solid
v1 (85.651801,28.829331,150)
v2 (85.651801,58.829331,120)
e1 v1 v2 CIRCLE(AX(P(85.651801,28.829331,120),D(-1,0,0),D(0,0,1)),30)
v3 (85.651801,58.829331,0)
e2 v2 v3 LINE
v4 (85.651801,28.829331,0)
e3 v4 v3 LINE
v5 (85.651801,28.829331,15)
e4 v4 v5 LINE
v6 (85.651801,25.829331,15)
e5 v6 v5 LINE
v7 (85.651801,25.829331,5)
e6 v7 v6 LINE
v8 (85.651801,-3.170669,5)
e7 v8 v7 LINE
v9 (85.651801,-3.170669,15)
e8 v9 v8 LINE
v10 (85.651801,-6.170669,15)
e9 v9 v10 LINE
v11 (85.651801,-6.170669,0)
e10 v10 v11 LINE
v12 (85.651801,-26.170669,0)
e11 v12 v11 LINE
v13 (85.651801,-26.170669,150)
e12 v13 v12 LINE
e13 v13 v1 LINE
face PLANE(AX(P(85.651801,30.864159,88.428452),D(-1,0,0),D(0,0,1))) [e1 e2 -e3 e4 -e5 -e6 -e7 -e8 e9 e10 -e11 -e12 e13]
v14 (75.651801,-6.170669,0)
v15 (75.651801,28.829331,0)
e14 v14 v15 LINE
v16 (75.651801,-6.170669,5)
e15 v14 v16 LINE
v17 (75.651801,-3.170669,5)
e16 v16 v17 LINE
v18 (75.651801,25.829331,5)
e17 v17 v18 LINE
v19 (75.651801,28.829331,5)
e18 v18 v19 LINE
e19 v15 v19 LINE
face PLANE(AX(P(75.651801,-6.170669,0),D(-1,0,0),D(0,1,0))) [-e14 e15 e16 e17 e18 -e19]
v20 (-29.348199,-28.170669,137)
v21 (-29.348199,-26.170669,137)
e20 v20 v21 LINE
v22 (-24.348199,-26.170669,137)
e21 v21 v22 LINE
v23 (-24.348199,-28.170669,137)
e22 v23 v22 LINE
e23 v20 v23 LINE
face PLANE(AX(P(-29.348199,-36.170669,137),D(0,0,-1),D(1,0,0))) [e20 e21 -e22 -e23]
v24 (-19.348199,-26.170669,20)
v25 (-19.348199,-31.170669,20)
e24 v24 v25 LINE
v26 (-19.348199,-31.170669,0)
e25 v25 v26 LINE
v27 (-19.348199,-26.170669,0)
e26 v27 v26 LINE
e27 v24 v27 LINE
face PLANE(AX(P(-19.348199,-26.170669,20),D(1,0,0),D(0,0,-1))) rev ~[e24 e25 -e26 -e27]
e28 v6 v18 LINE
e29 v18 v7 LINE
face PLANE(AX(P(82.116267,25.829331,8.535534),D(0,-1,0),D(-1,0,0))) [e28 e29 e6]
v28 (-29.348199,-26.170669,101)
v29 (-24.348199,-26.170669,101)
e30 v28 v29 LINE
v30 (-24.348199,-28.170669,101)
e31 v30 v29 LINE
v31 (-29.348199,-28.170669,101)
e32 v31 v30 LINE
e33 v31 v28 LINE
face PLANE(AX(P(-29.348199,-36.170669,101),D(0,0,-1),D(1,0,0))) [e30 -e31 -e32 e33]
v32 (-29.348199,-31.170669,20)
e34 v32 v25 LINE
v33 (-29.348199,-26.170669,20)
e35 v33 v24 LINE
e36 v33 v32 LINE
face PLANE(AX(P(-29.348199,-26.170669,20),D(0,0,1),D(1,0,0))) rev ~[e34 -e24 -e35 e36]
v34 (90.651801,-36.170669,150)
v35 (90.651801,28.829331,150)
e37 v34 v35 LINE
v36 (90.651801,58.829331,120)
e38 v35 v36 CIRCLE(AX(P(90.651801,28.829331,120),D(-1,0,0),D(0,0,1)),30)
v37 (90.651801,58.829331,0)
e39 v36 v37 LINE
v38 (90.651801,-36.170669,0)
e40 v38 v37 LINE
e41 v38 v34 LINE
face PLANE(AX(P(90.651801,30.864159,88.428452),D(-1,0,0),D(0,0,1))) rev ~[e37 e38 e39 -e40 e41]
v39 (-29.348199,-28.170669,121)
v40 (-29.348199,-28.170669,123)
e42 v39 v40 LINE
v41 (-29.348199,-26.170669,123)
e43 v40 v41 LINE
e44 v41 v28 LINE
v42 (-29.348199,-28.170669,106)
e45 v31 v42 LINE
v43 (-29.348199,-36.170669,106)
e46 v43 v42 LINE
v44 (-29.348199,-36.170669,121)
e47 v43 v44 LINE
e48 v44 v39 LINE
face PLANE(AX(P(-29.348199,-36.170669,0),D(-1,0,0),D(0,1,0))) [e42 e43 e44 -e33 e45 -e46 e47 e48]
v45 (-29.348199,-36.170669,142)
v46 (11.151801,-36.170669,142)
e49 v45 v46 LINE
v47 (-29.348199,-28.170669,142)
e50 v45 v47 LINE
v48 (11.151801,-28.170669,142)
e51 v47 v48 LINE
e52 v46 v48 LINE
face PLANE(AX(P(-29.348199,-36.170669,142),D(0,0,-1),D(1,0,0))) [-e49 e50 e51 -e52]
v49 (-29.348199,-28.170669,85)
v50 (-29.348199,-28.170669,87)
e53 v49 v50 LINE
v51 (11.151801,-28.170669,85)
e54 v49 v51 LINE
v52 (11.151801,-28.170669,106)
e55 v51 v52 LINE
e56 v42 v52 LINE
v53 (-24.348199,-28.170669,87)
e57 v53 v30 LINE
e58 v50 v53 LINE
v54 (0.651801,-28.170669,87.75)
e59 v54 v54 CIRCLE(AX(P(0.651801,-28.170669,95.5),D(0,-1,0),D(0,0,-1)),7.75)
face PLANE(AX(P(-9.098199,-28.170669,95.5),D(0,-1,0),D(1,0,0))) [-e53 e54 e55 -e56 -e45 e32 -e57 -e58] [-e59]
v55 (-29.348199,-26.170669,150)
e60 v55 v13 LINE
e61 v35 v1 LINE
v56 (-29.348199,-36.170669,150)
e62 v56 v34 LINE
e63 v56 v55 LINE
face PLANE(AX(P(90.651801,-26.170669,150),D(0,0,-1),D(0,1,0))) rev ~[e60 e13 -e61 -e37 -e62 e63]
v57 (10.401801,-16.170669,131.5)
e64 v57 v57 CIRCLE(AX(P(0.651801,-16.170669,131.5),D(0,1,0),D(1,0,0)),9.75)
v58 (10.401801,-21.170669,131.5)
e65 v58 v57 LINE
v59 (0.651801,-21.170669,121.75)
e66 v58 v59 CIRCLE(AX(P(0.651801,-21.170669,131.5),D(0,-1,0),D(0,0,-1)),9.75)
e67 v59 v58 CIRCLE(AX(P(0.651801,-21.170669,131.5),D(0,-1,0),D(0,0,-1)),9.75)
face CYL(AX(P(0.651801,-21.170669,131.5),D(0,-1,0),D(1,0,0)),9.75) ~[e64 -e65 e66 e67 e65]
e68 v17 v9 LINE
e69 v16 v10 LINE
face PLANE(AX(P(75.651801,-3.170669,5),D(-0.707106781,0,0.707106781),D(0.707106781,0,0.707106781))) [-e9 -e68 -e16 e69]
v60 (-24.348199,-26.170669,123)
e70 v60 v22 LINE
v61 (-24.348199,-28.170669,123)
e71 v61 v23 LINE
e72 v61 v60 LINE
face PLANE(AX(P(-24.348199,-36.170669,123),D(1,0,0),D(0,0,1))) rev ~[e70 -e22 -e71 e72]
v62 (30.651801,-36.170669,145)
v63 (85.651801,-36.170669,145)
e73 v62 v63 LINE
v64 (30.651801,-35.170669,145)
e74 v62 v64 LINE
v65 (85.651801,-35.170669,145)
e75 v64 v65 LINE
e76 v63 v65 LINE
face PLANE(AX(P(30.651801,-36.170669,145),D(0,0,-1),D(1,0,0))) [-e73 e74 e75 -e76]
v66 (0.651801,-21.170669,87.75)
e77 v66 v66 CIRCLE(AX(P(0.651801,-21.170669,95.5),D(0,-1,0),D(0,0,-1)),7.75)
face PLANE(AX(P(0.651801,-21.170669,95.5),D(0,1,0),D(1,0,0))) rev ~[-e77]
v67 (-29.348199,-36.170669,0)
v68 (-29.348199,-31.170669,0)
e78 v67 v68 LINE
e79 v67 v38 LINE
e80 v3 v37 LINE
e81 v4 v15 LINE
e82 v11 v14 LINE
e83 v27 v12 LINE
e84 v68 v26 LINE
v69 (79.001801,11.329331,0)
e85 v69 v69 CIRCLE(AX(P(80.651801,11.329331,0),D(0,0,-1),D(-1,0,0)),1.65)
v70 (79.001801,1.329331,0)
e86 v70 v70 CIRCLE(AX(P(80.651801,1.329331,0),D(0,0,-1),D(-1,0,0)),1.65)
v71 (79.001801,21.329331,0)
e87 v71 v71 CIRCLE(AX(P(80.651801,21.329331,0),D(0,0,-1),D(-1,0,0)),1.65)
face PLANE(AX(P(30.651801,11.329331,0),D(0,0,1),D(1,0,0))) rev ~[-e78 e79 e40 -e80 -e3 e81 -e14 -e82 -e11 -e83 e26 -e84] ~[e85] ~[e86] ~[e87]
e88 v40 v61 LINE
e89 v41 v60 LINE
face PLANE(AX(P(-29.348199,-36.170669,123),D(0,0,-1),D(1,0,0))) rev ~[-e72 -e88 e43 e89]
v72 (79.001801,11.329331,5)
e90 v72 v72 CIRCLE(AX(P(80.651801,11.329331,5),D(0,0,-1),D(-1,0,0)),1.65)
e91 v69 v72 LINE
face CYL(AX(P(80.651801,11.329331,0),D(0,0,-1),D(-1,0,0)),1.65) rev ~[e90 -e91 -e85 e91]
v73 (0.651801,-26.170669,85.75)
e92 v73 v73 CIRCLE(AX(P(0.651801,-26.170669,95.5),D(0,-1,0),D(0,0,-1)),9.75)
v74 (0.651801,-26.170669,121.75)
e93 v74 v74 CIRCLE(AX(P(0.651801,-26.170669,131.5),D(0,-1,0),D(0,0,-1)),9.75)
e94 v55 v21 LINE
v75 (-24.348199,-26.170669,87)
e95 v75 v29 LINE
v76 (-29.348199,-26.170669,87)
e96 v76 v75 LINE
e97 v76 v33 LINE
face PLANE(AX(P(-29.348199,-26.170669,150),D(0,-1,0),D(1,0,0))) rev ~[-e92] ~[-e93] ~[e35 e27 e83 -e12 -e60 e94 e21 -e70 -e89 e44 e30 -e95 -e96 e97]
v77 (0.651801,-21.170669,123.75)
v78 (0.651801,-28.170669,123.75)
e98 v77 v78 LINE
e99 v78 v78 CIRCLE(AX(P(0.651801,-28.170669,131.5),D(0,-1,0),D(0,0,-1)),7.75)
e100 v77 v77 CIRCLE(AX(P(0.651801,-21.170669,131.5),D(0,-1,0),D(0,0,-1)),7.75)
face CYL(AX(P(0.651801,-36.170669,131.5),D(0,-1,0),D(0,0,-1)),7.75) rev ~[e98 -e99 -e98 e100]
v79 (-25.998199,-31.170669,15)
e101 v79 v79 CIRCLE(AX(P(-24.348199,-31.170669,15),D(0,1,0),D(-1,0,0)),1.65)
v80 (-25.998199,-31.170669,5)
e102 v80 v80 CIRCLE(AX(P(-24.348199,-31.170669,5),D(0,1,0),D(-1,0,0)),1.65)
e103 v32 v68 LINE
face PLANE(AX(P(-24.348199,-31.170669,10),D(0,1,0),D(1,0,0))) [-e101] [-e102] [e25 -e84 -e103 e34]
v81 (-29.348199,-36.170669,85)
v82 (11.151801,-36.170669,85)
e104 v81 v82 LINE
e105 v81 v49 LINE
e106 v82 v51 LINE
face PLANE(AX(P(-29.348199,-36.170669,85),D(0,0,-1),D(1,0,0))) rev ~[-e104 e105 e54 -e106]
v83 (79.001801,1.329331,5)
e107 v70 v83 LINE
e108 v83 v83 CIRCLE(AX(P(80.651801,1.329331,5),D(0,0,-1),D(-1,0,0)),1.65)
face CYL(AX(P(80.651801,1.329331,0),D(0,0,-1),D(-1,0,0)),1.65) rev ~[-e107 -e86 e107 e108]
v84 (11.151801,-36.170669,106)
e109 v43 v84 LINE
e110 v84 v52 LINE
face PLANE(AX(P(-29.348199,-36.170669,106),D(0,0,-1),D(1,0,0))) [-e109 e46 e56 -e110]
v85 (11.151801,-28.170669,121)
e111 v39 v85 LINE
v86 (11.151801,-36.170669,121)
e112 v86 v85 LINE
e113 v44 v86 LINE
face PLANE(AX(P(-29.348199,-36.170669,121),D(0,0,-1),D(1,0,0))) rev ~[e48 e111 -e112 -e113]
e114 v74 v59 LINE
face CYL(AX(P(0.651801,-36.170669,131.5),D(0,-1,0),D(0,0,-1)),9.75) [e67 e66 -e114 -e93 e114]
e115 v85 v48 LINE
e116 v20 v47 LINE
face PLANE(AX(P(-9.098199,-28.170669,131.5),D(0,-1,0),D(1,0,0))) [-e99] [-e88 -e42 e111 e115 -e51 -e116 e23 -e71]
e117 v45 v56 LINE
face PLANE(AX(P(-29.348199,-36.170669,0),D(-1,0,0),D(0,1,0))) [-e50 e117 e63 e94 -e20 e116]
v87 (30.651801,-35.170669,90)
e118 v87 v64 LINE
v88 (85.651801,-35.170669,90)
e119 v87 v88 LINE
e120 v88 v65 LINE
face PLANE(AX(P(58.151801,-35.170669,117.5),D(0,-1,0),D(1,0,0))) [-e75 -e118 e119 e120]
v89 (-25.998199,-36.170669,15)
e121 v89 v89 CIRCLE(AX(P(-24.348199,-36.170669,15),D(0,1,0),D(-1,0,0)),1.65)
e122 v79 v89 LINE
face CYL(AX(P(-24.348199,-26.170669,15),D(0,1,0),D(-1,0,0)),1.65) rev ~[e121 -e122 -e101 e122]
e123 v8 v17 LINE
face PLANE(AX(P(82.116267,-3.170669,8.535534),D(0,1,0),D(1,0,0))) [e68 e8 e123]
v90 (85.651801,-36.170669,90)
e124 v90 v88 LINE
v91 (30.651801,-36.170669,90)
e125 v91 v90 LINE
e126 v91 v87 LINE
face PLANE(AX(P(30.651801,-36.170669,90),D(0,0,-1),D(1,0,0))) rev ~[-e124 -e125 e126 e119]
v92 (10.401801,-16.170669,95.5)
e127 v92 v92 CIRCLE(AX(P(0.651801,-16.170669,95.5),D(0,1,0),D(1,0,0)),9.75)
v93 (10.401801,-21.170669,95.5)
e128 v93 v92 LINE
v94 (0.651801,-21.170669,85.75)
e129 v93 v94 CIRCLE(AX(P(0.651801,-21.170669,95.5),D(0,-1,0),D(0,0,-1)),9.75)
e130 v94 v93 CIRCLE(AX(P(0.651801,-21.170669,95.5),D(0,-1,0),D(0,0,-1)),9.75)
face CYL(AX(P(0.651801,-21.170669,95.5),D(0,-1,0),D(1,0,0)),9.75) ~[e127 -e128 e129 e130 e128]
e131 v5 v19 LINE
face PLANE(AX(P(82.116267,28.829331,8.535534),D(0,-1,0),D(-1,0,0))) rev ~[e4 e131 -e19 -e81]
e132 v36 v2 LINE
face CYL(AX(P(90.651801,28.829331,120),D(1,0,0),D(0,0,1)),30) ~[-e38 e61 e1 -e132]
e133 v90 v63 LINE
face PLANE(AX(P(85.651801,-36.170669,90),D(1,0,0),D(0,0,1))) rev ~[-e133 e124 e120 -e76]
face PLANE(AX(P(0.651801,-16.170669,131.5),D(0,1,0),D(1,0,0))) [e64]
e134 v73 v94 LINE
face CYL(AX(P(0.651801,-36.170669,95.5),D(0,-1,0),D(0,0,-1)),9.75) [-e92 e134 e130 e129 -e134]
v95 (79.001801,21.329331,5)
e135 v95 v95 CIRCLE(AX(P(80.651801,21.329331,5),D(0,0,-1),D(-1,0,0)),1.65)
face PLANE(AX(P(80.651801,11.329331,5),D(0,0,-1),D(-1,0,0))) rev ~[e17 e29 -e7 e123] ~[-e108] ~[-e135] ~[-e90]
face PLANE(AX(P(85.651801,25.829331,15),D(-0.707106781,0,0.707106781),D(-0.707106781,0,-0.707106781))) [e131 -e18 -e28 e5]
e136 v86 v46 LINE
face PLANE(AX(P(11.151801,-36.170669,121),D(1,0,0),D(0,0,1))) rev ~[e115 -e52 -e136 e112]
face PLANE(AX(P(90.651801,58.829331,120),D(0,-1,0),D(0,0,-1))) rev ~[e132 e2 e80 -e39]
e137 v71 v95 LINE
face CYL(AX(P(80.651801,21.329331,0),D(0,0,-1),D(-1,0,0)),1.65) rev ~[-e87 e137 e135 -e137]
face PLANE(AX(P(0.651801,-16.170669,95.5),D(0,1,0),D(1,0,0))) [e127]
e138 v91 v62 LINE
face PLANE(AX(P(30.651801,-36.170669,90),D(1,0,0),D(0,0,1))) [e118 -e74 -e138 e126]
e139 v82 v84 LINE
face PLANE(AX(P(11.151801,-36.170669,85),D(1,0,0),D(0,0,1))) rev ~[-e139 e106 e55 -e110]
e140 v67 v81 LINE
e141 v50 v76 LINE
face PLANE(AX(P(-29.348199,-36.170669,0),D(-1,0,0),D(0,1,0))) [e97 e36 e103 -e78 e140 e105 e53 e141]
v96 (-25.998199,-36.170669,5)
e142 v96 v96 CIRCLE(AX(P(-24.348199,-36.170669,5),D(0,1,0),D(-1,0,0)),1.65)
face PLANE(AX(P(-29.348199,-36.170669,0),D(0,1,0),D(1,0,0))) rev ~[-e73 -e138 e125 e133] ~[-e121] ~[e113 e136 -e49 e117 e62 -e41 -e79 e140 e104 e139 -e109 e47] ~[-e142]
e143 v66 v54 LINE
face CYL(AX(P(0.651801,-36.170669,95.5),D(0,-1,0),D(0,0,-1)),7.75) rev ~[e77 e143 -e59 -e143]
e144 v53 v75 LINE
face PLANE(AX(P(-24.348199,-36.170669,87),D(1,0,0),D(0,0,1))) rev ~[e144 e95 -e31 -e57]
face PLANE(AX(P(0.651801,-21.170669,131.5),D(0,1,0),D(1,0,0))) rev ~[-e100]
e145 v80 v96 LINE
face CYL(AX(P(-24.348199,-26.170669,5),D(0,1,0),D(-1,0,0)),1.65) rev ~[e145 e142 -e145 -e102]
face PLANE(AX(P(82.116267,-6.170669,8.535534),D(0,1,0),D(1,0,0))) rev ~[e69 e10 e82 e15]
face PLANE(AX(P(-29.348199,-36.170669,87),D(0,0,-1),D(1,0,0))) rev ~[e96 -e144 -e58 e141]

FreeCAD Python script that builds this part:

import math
import FreeCAD as App
import Part
import Sketcher
from FreeCAD import Vector
Q = App.Units.Quantity

doc = App.newDocument("Part")
body = doc.addObject("PartDesign::Body", "Body")

# Sketch on XY plane
sketch1 = body.newObject("Sketcher::SketchObject", "Sketch")
sketch1.AttachmentSupport = (doc.getObject("XY_Plane"), [""])
sketch1.MapMode = "FlatFace"
sketch1.addGeometry(Part.LineSegment(Vector(-29, 59, 0), Vector(-29, -36, 0)), False)
sketch1.addGeometry(Part.LineSegment(Vector(-29, -36, 0), Vector(91, -36, 0)), False)
sketch1.addGeometry(Part.LineSegment(Vector(91, -36, 0), Vector(91, 59, 0)), False)
sketch1.addGeometry(Part.LineSegment(Vector(91, 59, 0), Vector(-29, 59, 0)), False)
sketch1.addConstraint(Sketcher.Constraint("Coincident", 0, 2, 1, 1))
sketch1.addConstraint(Sketcher.Constraint("Coincident", 1, 2, 2, 1))
sketch1.addConstraint(Sketcher.Constraint("Coincident", 2, 2, 3, 1))
sketch1.addConstraint(Sketcher.Constraint("Coincident", 3, 2, 0, 1))
sketch1.addConstraint(Sketcher.Constraint("Vertical", 0))
sketch1.addConstraint(Sketcher.Constraint("Horizontal", 1))
sketch1.addConstraint(Sketcher.Constraint("Vertical", 2))
sketch1.addConstraint(Sketcher.Constraint("Horizontal", 3))
sketch1.addConstraint(Sketcher.Constraint("DistanceX", 1, 1, 1, 2, Q("120 mm")))
sketch1.addConstraint(Sketcher.Constraint("DistanceY", 0, 2, 0, 1, Q("95 mm")))
sketch1.addConstraint(Sketcher.Constraint("DistanceX", 0, 2, -1, 1, Q("29.348199 mm")))
sketch1.addConstraint(Sketcher.Constraint("DistanceY", 0, 2, -1, 1, Q("36.170669 mm")))
pad1 = body.newObject("PartDesign::Pad", "Pad")
pad1.Profile = sketch1
pad1.Length = 150

# Sketch on XY plane
sketch2 = body.newObject("Sketcher::SketchObject", "Sketch001")
sketch2.AttachmentSupport = (doc.getObject("XY_Plane"), [""])
sketch2.MapMode = "FlatFace"
sketch2.AttachmentOffset = App.Placement(Vector(0, 0, 150), App.Rotation())
sketch2.addGeometry(Part.LineSegment(Vector(-29, 59, 0), Vector(-29, -26, 0)), False)
sketch2.addGeometry(Part.LineSegment(Vector(-29, -26, 0), Vector(86, -26, 0)), False)
sketch2.addGeometry(Part.LineSegment(Vector(86, -26, 0), Vector(86, 59, 0)), False)
sketch2.addGeometry(Part.LineSegment(Vector(86, 59, 0), Vector(-29, 59, 0)), False)
sketch2.addConstraint(Sketcher.Constraint("Coincident", 0, 2, 1, 1))
sketch2.addConstraint(Sketcher.Constraint("Coincident", 1, 2, 2, 1))
sketch2.addConstraint(Sketcher.Constraint("Coincident", 2, 2, 3, 1))
sketch2.addConstraint(Sketcher.Constraint("Coincident", 3, 2, 0, 1))
sketch2.addConstraint(Sketcher.Constraint("Vertical", 0))
sketch2.addConstraint(Sketcher.Constraint("Horizontal", 1))
sketch2.addConstraint(Sketcher.Constraint("Vertical", 2))
sketch2.addConstraint(Sketcher.Constraint("Horizontal", 3))
sketch2.addConstraint(Sketcher.Constraint("DistanceX", 1, 1, 1, 2, Q("115 mm")))
sketch2.addConstraint(Sketcher.Constraint("DistanceY", 0, 2, 0, 1, Q("85 mm")))
sketch2.addConstraint(Sketcher.Constraint("DistanceX", 0, 2, -1, 1, Q("29.348199 mm")))
sketch2.addConstraint(Sketcher.Constraint("DistanceY", 0, 2, -1, 1, Q("26.170669 mm")))
pocket1 = body.newObject("PartDesign::Pocket", "Pocket")
pocket1.Profile = sketch2
pocket1.Length = 150

# Sketch on YZ plane
sketch3 = body.newObject("Sketcher::SketchObject", "Sketch002")
sketch3.AttachmentSupport = (doc.getObject("YZ_Plane"), [""])
sketch3.MapMode = "FlatFace"
sketch3.AttachmentOffset = App.Placement(Vector(0, 0, 90.651801), App.Rotation())
sketch3.addGeometry(Part.LineSegment(Vector(59, 150, 0), Vector(-26, 150, 0)), False)
sketch3.addGeometry(Part.LineSegment(Vector(-26, 150, 0), Vector(59, 0, 0)), False)
sketch3.addGeometry(Part.LineSegment(Vector(59, 0, 0), Vector(59, 150, 0)), False)
sketch3.addConstraint(Sketcher.Constraint("Coincident", 0, 2, 1, 1))
sketch3.addConstraint(Sketcher.Constraint("Coincident", 1, 2, 2, 1))
sketch3.addConstraint(Sketcher.Constraint("Coincident", 2, 2, 0, 1))
sketch3.addConstraint(Sketcher.Constraint("Horizontal", 0))
sketch3.addConstraint(Sketcher.Constraint("Vertical", 2))
sketch3.addConstraint(Sketcher.Constraint("PointOnObject", 1, 2, -1))
sketch3.addConstraint(Sketcher.Constraint("DistanceX", 0, 2, 0, 1, Q("85 mm")))
sketch3.addConstraint(Sketcher.Constraint("DistanceY", 2, 1, 2, 2, Q("150 mm")))
sketch3.addConstraint(Sketcher.Constraint("DistanceX", 0, 2, -1, 1, Q("26.170669 mm")))
pocket2 = body.newObject("PartDesign::Pocket", "Pocket001")
pocket2.Profile = sketch3
pocket2.Length = 150

# Sketch on XY plane
sketch4 = body.newObject("Sketcher::SketchObject", "Sketch003")
sketch4.AttachmentSupport = (doc.getObject("XY_Plane"), [""])
sketch4.MapMode = "FlatFace"
sketch4.addGeometry(Part.LineSegment(Vector(85.7, 28.8, 0), Vector(85.7, -6.2, 0)), False)
sketch4.addGeometry(Part.LineSegment(Vector(85.7, -6.2, 0), Vector(75.7, -6.2, 0)), False)
sketch4.addGeometry(Part.LineSegment(Vector(75.7, -6.2, 0), Vector(75.7, 28.8, 0)), False)
sketch4.addGeometry(Part.LineSegment(Vector(75.7, 28.8, 0), Vector(85.7, 28.8, 0)), False)
sketch4.addGeometry(Part.Circle(Vector(80.7, 1.3, 0), Vector(0, 0, 1), 1.6), False)
sketch4.addGeometry(Part.Circle(Vector(80.7, 11.3, 0), Vector(0, 0, 1), 1.6), False)
sketch4.addGeometry(Part.Circle(Vector(80.7, 21.3, 0), Vector(0, 0, 1), 1.6), False)
sketch4.addConstraint(Sketcher.Constraint("Coincident", 0, 2, 1, 1))
sketch4.addConstraint(Sketcher.Constraint("Coincident", 1, 2, 2, 1))
sketch4.addConstraint(Sketcher.Constraint("Coincident", 2, 2, 3, 1))
sketch4.addConstraint(Sketcher.Constraint("Coincident", 3, 2, 0, 1))
sketch4.addConstraint(Sketcher.Constraint("Vertical", 0))
sketch4.addConstraint(Sketcher.Constraint("Horizontal", 1))
sketch4.addConstraint(Sketcher.Constraint("Vertical", 2))
sketch4.addConstraint(Sketcher.Constraint("Horizontal", 3))
sketch4.addConstraint(Sketcher.Constraint("Equal", 4, 5))
sketch4.addConstraint(Sketcher.Constraint("Equal", 5, 6))
sketch4.addConstraint(Sketcher.Constraint("Vertical", 4, 3, 5, 3))
sketch4.addConstraint(Sketcher.Constraint("Vertical", 5, 3, 6, 3))
sketch4.addConstraint(Sketcher.Constraint("Diameter", 4, Q("3.3 mm")))
sketch4.addConstraint(Sketcher.Constraint("DistanceX", 1, 2, 1, 1, Q("10 mm")))
sketch4.addConstraint(Sketcher.Constraint("DistanceY", 0, 2, 0, 1, Q("35 mm")))
sketch4.addConstraint(Sketcher.Constraint("DistanceY", 4, 3, 5, 3, Q("10 mm")))
sketch4.addConstraint(Sketcher.Constraint("DistanceY", 5, 3, 6, 3, Q("10 mm")))
sketch4.addConstraint(Sketcher.Constraint("DistanceX", 4, 3, 0, 2, Q("5 mm")))
sketch4.addConstraint(Sketcher.Constraint("DistanceY", 0, 2, 4, 3, Q("7.5 mm")))
sketch4.addConstraint(Sketcher.Constraint("DistanceX", -1, 1, 4, 3, Q("80.651801 mm")))
sketch4.addConstraint(Sketcher.Constraint("DistanceY", -1, 1, 4, 3, Q("1.329331 mm")))
pad2 = body.newObject("PartDesign::Pad", "Pad001")
pad2.Profile = sketch4
pad2.Length = 5

# Sketch on XZ plane
sketch5 = body.newObject("Sketcher::SketchObject", "Sketch004")
sketch5.AttachmentSupport = (doc.getObject("XZ_Plane"), [""])
sketch5.MapMode = "FlatFace"
sketch5.AttachmentOffset = App.Placement(Vector(0, 0, 3.170669), App.Rotation())
sketch5.addGeometry(Part.LineSegment(Vector(76, 5, 0), Vector(86, 5, 0)), False)
sketch5.addGeometry(Part.LineSegment(Vector(86, 5, 0), Vector(86, 15, 0)), False)
sketch5.addGeometry(Part.LineSegment(Vector(86, 15, 0), Vector(76, 5, 0)), False)
sketch5.addConstraint(Sketcher.Constraint("Coincident", 0, 2, 1, 1))
sketch5.addConstraint(Sketcher.Constraint("Coincident", 1, 2, 2, 1))
sketch5.addConstraint(Sketcher.Constraint("Coincident", 2, 2, 0, 1))
sketch5.addConstraint(Sketcher.Constraint("Horizontal", 0))
sketch5.addConstraint(Sketcher.Constraint("Vertical", 1))
sketch5.addConstraint(Sketcher.Constraint("Equal", 0, 1))
sketch5.addConstraint(Sketcher.Constraint("DistanceX", 0, 1, 0, 2, Q("10 mm")))
sketch5.addConstraint(Sketcher.Constraint("DistanceY", -1, 1, 0, 2, Q("5 mm")))
sketch5.addConstraint(Sketcher.Constraint("DistanceX", -1, 1, 0, 2, Q("85.651801 mm")))
pad3 = body.newObject("PartDesign::Pad", "Pad002")
pad3.Profile = sketch5
pad3.Length = 3

# Sketch on XZ plane
sketch6 = body.newObject("Sketcher::SketchObject", "Sketch005")
sketch6.AttachmentSupport = (doc.getObject("XZ_Plane"), [""])
sketch6.MapMode = "FlatFace"
sketch6.AttachmentOffset = App.Placement(Vector(0, 0, -25.829331), App.Rotation())
sketch6.addGeometry(Part.LineSegment(Vector(86, 5, 0), Vector(76, 5, 0)), False)
sketch6.addGeometry(Part.LineSegment(Vector(76, 5, 0), Vector(86, 15, 0)), False)
sketch6.addGeometry(Part.LineSegment(Vector(86, 15, 0), Vector(86, 5, 0)), False)
sketch6.addConstraint(Sketcher.Constraint("Coincident", 0, 2, 1, 1))
sketch6.addConstraint(Sketcher.Constraint("Coincident", 1, 2, 2, 1))
sketch6.addConstraint(Sketcher.Constraint("Coincident", 2, 2, 0, 1))
sketch6.addConstraint(Sketcher.Constraint("Horizontal", 0))
sketch6.addConstraint(Sketcher.Constraint("Vertical", 2))
sketch6.addConstraint(Sketcher.Constraint("Equal", 0, 2))
sketch6.addConstraint(Sketcher.Constraint("DistanceX", 0, 2, 0, 1, Q("10 mm")))
sketch6.addConstraint(Sketcher.Constraint("DistanceY", -1, 1, 0, 2, Q("5 mm")))
sketch6.addConstraint(Sketcher.Constraint("DistanceX", -1, 1, 0, 2, Q("75.651801 mm")))
pad4 = body.newObject("PartDesign::Pad", "Pad003")
pad4.Profile = sketch6
pad4.Length = 3
pad4.Reversed = True

# Sketch on XZ plane
sketch7 = body.newObject("Sketcher::SketchObject", "Sketch006")
sketch7.AttachmentSupport = (doc.getObject("XZ_Plane"), [""])
sketch7.MapMode = "FlatFace"
sketch7.AttachmentOffset = App.Placement(Vector(0, 0, 26.170669), App.Rotation())
sketch7.addGeometry(Part.LineSegment(Vector(-29.3, 0, 0), Vector(-29.3, 20, 0)), False)
sketch7.addGeometry(Part.LineSegment(Vector(-29.3, 20, 0), Vector(-19.3, 20, 0)), False)
sketch7.addGeometry(Part.LineSegment(Vector(-19.3, 20, 0), Vector(-19.3, 0, 0)), False)
sketch7.addGeometry(Part.LineSegment(Vector(-19.3, 0, 0), Vector(-29.3, 0, 0)), False)
sketch7.addGeometry(Part.Circle(Vector(-24.3, 15, 0), Vector(0, 0, 1), 1.6), False)
sketch7.addGeometry(Part.Circle(Vector(-24.3, 5, 0), Vector(0, 0, 1), 1.6), False)
sketch7.addConstraint(Sketcher.Constraint("Coincident", 0, 2, 1, 1))
sketch7.addConstraint(Sketcher.Constraint("Coincident", 1, 2, 2, 1))
sketch7.addConstraint(Sketcher.Constraint("Coincident", 2, 2, 3, 1))
sketch7.addConstraint(Sketcher.Constraint("Coincident", 3, 2, 0, 1))
sketch7.addConstraint(Sketcher.Constraint("Vertical", 0))
sketch7.addConstraint(Sketcher.Constraint("Horizontal", 1))
sketch7.addConstraint(Sketcher.Constraint("Vertical", 2))
sketch7.addConstraint(Sketcher.Constraint("Horizontal", 3))
sketch7.addConstraint(Sketcher.Constraint("Equal", 4, 5))
sketch7.addConstraint(Sketcher.Constraint("PointOnObject", 2, 2, -1))
sketch7.addConstraint(Sketcher.Constraint("Vertical", 4, 3, 5, 3))
sketch7.addConstraint(Sketcher.Constraint("Diameter", 4, Q("3.3 mm")))
sketch7.addConstraint(Sketcher.Constraint("DistanceX", 1, 1, 1, 2, Q("10 mm")))
sketch7.addConstraint(Sketcher.Constraint("DistanceY", 0, 1, 0, 2, Q("20 mm")))
sketch7.addConstraint(Sketcher.Constraint("DistanceY", -1, 1, 4, 3, Q("15 mm")))
sketch7.addConstraint(Sketcher.Constraint("DistanceY", -1, 1, 5, 3, Q("5 mm")))
sketch7.addConstraint(Sketcher.Constraint("DistanceX", 0, 2, 4, 3, Q("5 mm")))
sketch7.addConstraint(Sketcher.Constraint("DistanceX", 4, 3, -1, 1, Q("24.348199 mm")))
pocket3 = body.newObject("PartDesign::Pocket", "Pocket002")
pocket3.Profile = sketch7
pocket3.Length = 5
pocket3.Reversed = True

# Sketch on XZ plane
sketch8 = body.newObject("Sketcher::SketchObject", "Sketch007")
sketch8.AttachmentSupport = (doc.getObject("XZ_Plane"), [""])
sketch8.MapMode = "FlatFace"
sketch8.AttachmentOffset = App.Placement(Vector(0, 0, 26.170669), App.Rotation())
sketch8.addGeometry(Part.Circle(Vector(-24.3, 5, 0), Vector(0, 0, 1), 1.6), False)
sketch8.addGeometry(Part.Circle(Vector(-24.3, 15, 0), Vector(0, 0, 1), 1.6), False)
sketch8.addConstraint(Sketcher.Constraint("Equal", 0, 1))
sketch8.addConstraint(Sketcher.Constraint("Vertical", 0, 3, 1, 3))
sketch8.addConstraint(Sketcher.Constraint("Diameter", 0, Q("3.3 mm")))
sketch8.addConstraint(Sketcher.Constraint("DistanceY", -1, 1, 0, 3, Q("5 mm")))
sketch8.addConstraint(Sketcher.Constraint("DistanceY", -1, 1, 1, 3, Q("15 mm")))
sketch8.addConstraint(Sketcher.Constraint("DistanceX", 0, 3, -1, 1, Q("24.348199 mm")))
pocket4 = body.newObject("PartDesign::Pocket", "Pocket003")
pocket4.Profile = sketch8
pocket4.Type = "ThroughAll"
pocket4.Reversed = True

# Sketch on XZ plane
sketch9 = body.newObject("Sketcher::SketchObject", "Sketch008")
sketch9.AttachmentSupport = (doc.getObject("XZ_Plane"), [""])
sketch9.MapMode = "FlatFace"
sketch9.AttachmentOffset = App.Placement(Vector(0, 0, 36.170669), App.Rotation())
sketch9.addGeometry(Part.Circle(Vector(1, 96, 0), Vector(0, 0, 1), 8), False)
sketch9.addGeometry(Part.Circle(Vector(1, 132, 0), Vector(0, 0, 1), 8), False)
sketch9.addConstraint(Sketcher.Constraint("Equal", 0, 1))
sketch9.addConstraint(Sketcher.Constraint("Vertical", 0, 3, 1, 3))
sketch9.addConstraint(Sketcher.Constraint("Diameter", 0, Q("15.5 mm")))
sketch9.addConstraint(Sketcher.Constraint("DistanceY", 0, 3, 1, 3, Q("36 mm")))
sketch9.addConstraint(Sketcher.Constraint("DistanceY", -1, 1, 0, 3, Q("95.5 mm")))
sketch9.addConstraint(Sketcher.Constraint("DistanceX", -1, 1, 0, 3, Q("0.651801 mm")))
pocket5 = body.newObject("PartDesign::Pocket", "Pocket004")
pocket5.Profile = sketch9
pocket5.Type = "ThroughAll"

# Sketch on XZ plane
sketch10 = body.newObject("Sketcher::SketchObject", "Sketch009")
sketch10.AttachmentSupport = (doc.getObject("XZ_Plane"), [""])
sketch10.MapMode = "FlatFace"
sketch10.AttachmentOffset = App.Placement(Vector(0, 0, 36.170669), App.Rotation())
sketch10.addGeometry(Part.Circle(Vector(1, 96, 0), Vector(0, 0, 1), 10), False)
sketch10.addGeometry(Part.Circle(Vector(1, 96, 0), Vector(0, 0, 1), 8), False)
sketch10.addGeometry(Part.Circle(Vector(1, 132, 0), Vector(0, 0, 1), 10), False)
sketch10.addGeometry(Part.Circle(Vector(1, 132, 0), Vector(0, 0, 1), 8), False)
sketch10.addConstraint(Sketcher.Constraint("Coincident", 1, 3, 0, 3))
sketch10.addConstraint(Sketcher.Constraint("Coincident", 3, 3, 2, 3))
sketch10.addConstraint(Sketcher.Constraint("Equal", 0, 2))
sketch10.addConstraint(Sketcher.Constraint("Equal", 1, 3))
sketch10.addConstraint(Sketcher.Constraint("Vertical", 1, 3, 2, 3))
sketch10.addConstraint(Sketcher.Constraint("Diameter", 0, Q("19.5 mm")))
sketch10.addConstraint(Sketcher.Constraint("Diameter", 1, Q("15.5 mm")))
sketch10.addConstraint(Sketcher.Constraint("DistanceY", 0, 3, 2, 3, Q("36 mm")))
sketch10.addConstraint(Sketcher.Constraint("DistanceY", -1, 1, 0, 3, Q("95.5 mm")))
sketch10.addConstraint(Sketcher.Constraint("DistanceX", -1, 1, 0, 3, Q("0.651801 mm")))
pad5 = body.newObject("PartDesign::Pad", "Pad004")
pad5.Profile = sketch10
pad5.Length = 15
pad5.Reversed = True

# Sketch on XZ plane
sketch11 = body.newObject("Sketcher::SketchObject", "Sketch010")
sketch11.AttachmentSupport = (doc.getObject("XZ_Plane"), [""])
sketch11.MapMode = "FlatFace"
sketch11.AttachmentOffset = App.Placement(Vector(0, 0, 21.170669), App.Rotation())
sketch11.addGeometry(Part.Circle(Vector(1, 96, 0), Vector(0, 0, 1), 10), False)
sketch11.addGeometry(Part.Circle(Vector(1, 132, 0), Vector(0, 0, 1), 10), False)
sketch11.addConstraint(Sketcher.Constraint("Equal", 0, 1))
sketch11.addConstraint(Sketcher.Constraint("Vertical", 0, 3, 1, 3))
sketch11.addConstraint(Sketcher.Constraint("Diameter", 0, Q("19.5 mm")))
sketch11.addConstraint(Sketcher.Constraint("DistanceY", 0, 3, 1, 3, Q("36 mm")))
sketch11.addConstraint(Sketcher.Constraint("DistanceY", -1, 1, 0, 3, Q("95.5 mm")))
sketch11.addConstraint(Sketcher.Constraint("DistanceX", -1, 1, 0, 3, Q("0.651801 mm")))
pad6 = body.newObject("PartDesign::Pad", "Pad005")
pad6.Profile = sketch11
pad6.Length = 5
pad6.Reversed = True

# Sketch on XZ plane
sketch12 = body.newObject("Sketcher::SketchObject", "Sketch011")
sketch12.AttachmentSupport = (doc.getObject("XZ_Plane"), [""])
sketch12.MapMode = "FlatFace"
sketch12.AttachmentOffset = App.Placement(Vector(0, 0, 36.170669), App.Rotation())
sketch12.addGeometry(Part.LineSegment(Vector(-29, 142, 0), Vector(-29, 121, 0)), False)
sketch12.addGeometry(Part.LineSegment(Vector(-29, 121, 0), Vector(11, 121, 0)), False)
sketch12.addGeometry(Part.LineSegment(Vector(11, 121, 0), Vector(11, 142, 0)), False)
sketch12.addGeometry(Part.LineSegment(Vector(11, 142, 0), Vector(-29, 142, 0)), False)
sketch12.addGeometry(Part.LineSegment(Vector(-29, 106, 0), Vector(-29, 85, 0)), False)
sketch12.addGeometry(Part.LineSegment(Vector(-29, 85, 0), Vector(11, 85, 0)), False)
sketch12.addGeometry(Part.LineSegment(Vector(11, 85, 0), Vector(11, 106, 0)), False)
sketch12.addGeometry(Part.LineSegment(Vector(11, 106, 0), Vector(-29, 106, 0)), False)
sketch12.addConstraint(Sketcher.Constraint("Coincident", 0, 2, 1, 1))
sketch12.addConstraint(Sketcher.Constraint("Coincident", 1, 2, 2, 1))
sketch12.addConstraint(Sketcher.Constraint("Coincident", 2, 2, 3, 1))
sketch12.addConstraint(Sketcher.Constraint("Coincident", 3, 2, 0, 1))
sketch12.addConstraint(Sketcher.Constraint("Coincident", 4, 2, 5, 1))
sketch12.addConstraint(Sketcher.Constraint("Coincident", 5, 2, 6, 1))
sketch12.addConstraint(Sketcher.Constraint("Coincident", 6, 2, 7, 1))
sketch12.addConstraint(Sketcher.Constraint("Coincident", 7, 2, 4, 1))
sketch12.addConstraint(Sketcher.Constraint("Vertical", 0))
sketch12.addConstraint(Sketcher.Constraint("Horizontal", 1))
sketch12.addConstraint(Sketcher.Constraint("Vertical", 2))
sketch12.addConstraint(Sketcher.Constraint("Horizontal", 3))
sketch12.addConstraint(Sketcher.Constraint("Vertical", 4))
sketch12.addConstraint(Sketcher.Constraint("Horizontal", 5))
sketch12.addConstraint(Sketcher.Constraint("Vertical", 6))
sketch12.addConstraint(Sketcher.Constraint("Horizontal", 7))
sketch12.addConstraint(Sketcher.Constraint("Vertical", 3, 2, 4, 2))
sketch12.addConstraint(Sketcher.Constraint("Vertical", 2, 2, 5, 2))
sketch12.addConstraint(Sketcher.Constraint("Equal", 2, 4))
sketch12.addConstraint(Sketcher.Constraint("DistanceY", 0, 2, 0, 1, Q("21 mm")))
sketch12.addConstraint(Sketcher.Constraint("DistanceX", 1, 1, 1, 2, Q("40.5 mm")))
sketch12.addConstraint(Sketcher.Constraint("DistanceY", -1, 1, 0, 2, Q("121 mm")))
sketch12.addConstraint(Sketcher.Constraint("DistanceY", -1, 1, 4, 2, Q("85 mm")))
sketch12.addConstraint(Sketcher.Constraint("DistanceX", 0, 2, -1, 1, Q("29.348199 mm")))
pocket6 = body.newObject("PartDesign::Pocket", "Pocket005")
pocket6.Profile = sketch12
pocket6.Length = 8

# Sketch on XZ plane
sketch13 = body.newObject("Sketcher::SketchObject", "Sketch012")
sketch13.AttachmentSupport = (doc.getObject("XZ_Plane"), [""])
sketch13.MapMode = "FlatFace"
sketch13.AttachmentOffset = App.Placement(Vector(0, 0, 36.170669), App.Rotation())
sketch13.addGeometry(Part.LineSegment(Vector(-29, 137, 0), Vector(-29, 123, 0)), False)
sketch13.addGeometry(Part.LineSegment(Vector(-29, 123, 0), Vector(-24, 123, 0)), False)
sketch13.addGeometry(Part.LineSegment(Vector(-24, 123, 0), Vector(-24, 137, 0)), False)
sketch13.addGeometry(Part.LineSegment(Vector(-24, 137, 0), Vector(-29, 137, 0)), False)
sketch13.addGeometry(Part.LineSegment(Vector(-29, 101, 0), Vector(-29, 87, 0)), False)
sketch13.addGeometry(Part.LineSegment(Vector(-29, 87, 0), Vector(-24, 87, 0)), False)
sketch13.addGeometry(Part.LineSegment(Vector(-24, 87, 0), Vector(-24, 101, 0)), False)
sketch13.addGeometry(Part.LineSegment(Vector(-24, 101, 0), Vector(-29, 101, 0)), False)
sketch13.addConstraint(Sketcher.Constraint("Coincident", 0, 2, 1, 1))
sketch13.addConstraint(Sketcher.Constraint("Coincident", 1, 2, 2, 1))
sketch13.addConstraint(Sketcher.Constraint("Coincident", 2, 2, 3, 1))
sketch13.addConstraint(Sketcher.Constraint("Coincident", 3, 2, 0, 1))
sketch13.addConstraint(Sketcher.Constraint("Coincident", 4, 2, 5, 1))
sketch13.addConstraint(Sketcher.Constraint("Coincident", 5, 2, 6, 1))
sketch13.addConstraint(Sketcher.Constraint("Coincident", 6, 2, 7, 1))
sketch13.addConstraint(Sketcher.Constraint("Coincident", 7, 2, 4, 1))
sketch13.addConstraint(Sketcher.Constraint("Vertical", 0))
sketch13.addConstraint(Sketcher.Constraint("Horizontal", 1))
sketch13.addConstraint(Sketcher.Constraint("Vertical", 2))
sketch13.addConstraint(Sketcher.Constraint("Horizontal", 3))
sketch13.addConstraint(Sketcher.Constraint("Vertical", 4))
sketch13.addConstraint(Sketcher.Constraint("Horizontal", 5))
sketch13.addConstraint(Sketcher.Constraint("Vertical", 6))
sketch13.addConstraint(Sketcher.Constraint("Horizontal", 7))
sketch13.addConstraint(Sketcher.Constraint("Vertical", 3, 2, 4, 2))
sketch13.addConstraint(Sketcher.Constraint("Vertical", 2, 2, 5, 2))
sketch13.addConstraint(Sketcher.Constraint("Equal", 2, 4))
sketch13.addConstraint(Sketcher.Constraint("DistanceX", 1, 1, 1, 2, Q("5 mm")))
sketch13.addConstraint(Sketcher.Constraint("DistanceY", 0, 2, 0, 1, Q("14 mm")))
sketch13.addConstraint(Sketcher.Constraint("DistanceY", -1, 1, 0, 2, Q("123 mm")))
sketch13.addConstraint(Sketcher.Constraint("DistanceY", -1, 1, 4, 2, Q("87 mm")))
sketch13.addConstraint(Sketcher.Constraint("DistanceX", 0, 2, -1, 1, Q("29.348199 mm")))
pocket7 = body.newObject("PartDesign::Pocket", "Pocket006")
pocket7.Profile = sketch13
pocket7.Type = "ThroughAll"

# Sketch on XZ plane
sketch14 = body.newObject("Sketcher::SketchObject", "Sketch013")
sketch14.AttachmentSupport = (doc.getObject("XZ_Plane"), [""])
sketch14.MapMode = "FlatFace"
sketch14.AttachmentOffset = App.Placement(Vector(0, 0, 36.170669), App.Rotation())
sketch14.addGeometry(Part.LineSegment(Vector(31, 145, 0), Vector(31, 90, 0)), False)
sketch14.addGeometry(Part.LineSegment(Vector(31, 90, 0), Vector(86, 90, 0)), False)
sketch14.addGeometry(Part.LineSegment(Vector(86, 90, 0), Vector(86, 145, 0)), False)
sketch14.addGeometry(Part.LineSegment(Vector(86, 145, 0), Vector(31, 145, 0)), False)
sketch14.addConstraint(Sketcher.Constraint("Coincident", 0, 2, 1, 1))
sketch14.addConstraint(Sketcher.Constraint("Coincident", 1, 2, 2, 1))
sketch14.addConstraint(Sketcher.Constraint("Coincident", 2, 2, 3, 1))
sketch14.addConstraint(Sketcher.Constraint("Coincident", 3, 2, 0, 1))
sketch14.addConstraint(Sketcher.Constraint("Vertical", 0))
sketch14.addConstraint(Sketcher.Constraint("Horizontal", 1))
sketch14.addConstraint(Sketcher.Constraint("Vertical", 2))
sketch14.addConstraint(Sketcher.Constraint("Horizontal", 3))
sketch14.addConstraint(Sketcher.Constraint("Equal", 3, 0))
sketch14.addConstraint(Sketcher.Constraint("DistanceX", 1, 1, 1, 2, Q("55 mm")))
sketch14.addConstraint(Sketcher.Constraint("DistanceY", -1, 1, 0, 2, Q("90 mm")))
sketch14.addConstraint(Sketcher.Constraint("DistanceX", -1, 1, 0, 2, Q("30.651801 mm")))
pocket8 = body.newObject("PartDesign::Pocket", "Pocket007")
pocket8.Profile = sketch14
pocket8.Length = 1

# Sketch on YZ plane
sketch15 = body.newObject("Sketcher::SketchObject", "Sketch014")
sketch15.AttachmentSupport = (doc.getObject("YZ_Plane"), [""])
sketch15.MapMode = "FlatFace"
sketch15.AttachmentOffset = App.Placement(Vector(0, 0, 90.651801), App.Rotation())
sketch15.addGeometry(Part.LineSegment(Vector(29, 150, 0), Vector(-26, 150, 0)), False)
sketch15.addGeometry(Part.LineSegment(Vector(-26, 150, 0), Vector(59, 0, 0)), False)
sketch15.addGeometry(Part.LineSegment(Vector(59, 0, 0), Vector(59, 120, 0)), False)
sketch15.addGeometry(Part.ArcOfCircle(Part.Circle(Vector(29, 120, 0), Vector(0, 0, 1), 30), math.radians(0), math.radians(90)), False)
sketch15.addConstraint(Sketcher.Constraint("Coincident", 0, 2, 1, 1))
sketch15.addConstraint(Sketcher.Constraint("Coincident", 1, 2, 2, 1))
sketch15.addConstraint(Sketcher.Constraint("Tangent", 2, 2, 3, 1))
sketch15.addConstraint(Sketcher.Constraint("Tangent", 3, 2, 0, 1))
sketch15.addConstraint(Sketcher.Constraint("Horizontal", 0))
sketch15.addConstraint(Sketcher.Constraint("Vertical", 2))
sketch15.addConstraint(Sketcher.Constraint("PointOnObject", 1, 2, -1))
sketch15.addConstraint(Sketcher.Constraint("Radius", 3, Q("30 mm")))
sketch15.addConstraint(Sketcher.Constraint("DistanceX", 0, 2, 0, 1, Q("55 mm")))
sketch15.addConstraint(Sketcher.Constraint("DistanceY", 2, 1, 2, 2, Q("120 mm")))
sketch15.addConstraint(Sketcher.Constraint("DistanceX", -1, 1, 3, 3, Q("28.829331 mm")))
pad7 = body.newObject("PartDesign::Pad", "Pad006")
pad7.Profile = sketch15
pad7.Length = 5
pad7.Reversed = True

doc.recompute()
